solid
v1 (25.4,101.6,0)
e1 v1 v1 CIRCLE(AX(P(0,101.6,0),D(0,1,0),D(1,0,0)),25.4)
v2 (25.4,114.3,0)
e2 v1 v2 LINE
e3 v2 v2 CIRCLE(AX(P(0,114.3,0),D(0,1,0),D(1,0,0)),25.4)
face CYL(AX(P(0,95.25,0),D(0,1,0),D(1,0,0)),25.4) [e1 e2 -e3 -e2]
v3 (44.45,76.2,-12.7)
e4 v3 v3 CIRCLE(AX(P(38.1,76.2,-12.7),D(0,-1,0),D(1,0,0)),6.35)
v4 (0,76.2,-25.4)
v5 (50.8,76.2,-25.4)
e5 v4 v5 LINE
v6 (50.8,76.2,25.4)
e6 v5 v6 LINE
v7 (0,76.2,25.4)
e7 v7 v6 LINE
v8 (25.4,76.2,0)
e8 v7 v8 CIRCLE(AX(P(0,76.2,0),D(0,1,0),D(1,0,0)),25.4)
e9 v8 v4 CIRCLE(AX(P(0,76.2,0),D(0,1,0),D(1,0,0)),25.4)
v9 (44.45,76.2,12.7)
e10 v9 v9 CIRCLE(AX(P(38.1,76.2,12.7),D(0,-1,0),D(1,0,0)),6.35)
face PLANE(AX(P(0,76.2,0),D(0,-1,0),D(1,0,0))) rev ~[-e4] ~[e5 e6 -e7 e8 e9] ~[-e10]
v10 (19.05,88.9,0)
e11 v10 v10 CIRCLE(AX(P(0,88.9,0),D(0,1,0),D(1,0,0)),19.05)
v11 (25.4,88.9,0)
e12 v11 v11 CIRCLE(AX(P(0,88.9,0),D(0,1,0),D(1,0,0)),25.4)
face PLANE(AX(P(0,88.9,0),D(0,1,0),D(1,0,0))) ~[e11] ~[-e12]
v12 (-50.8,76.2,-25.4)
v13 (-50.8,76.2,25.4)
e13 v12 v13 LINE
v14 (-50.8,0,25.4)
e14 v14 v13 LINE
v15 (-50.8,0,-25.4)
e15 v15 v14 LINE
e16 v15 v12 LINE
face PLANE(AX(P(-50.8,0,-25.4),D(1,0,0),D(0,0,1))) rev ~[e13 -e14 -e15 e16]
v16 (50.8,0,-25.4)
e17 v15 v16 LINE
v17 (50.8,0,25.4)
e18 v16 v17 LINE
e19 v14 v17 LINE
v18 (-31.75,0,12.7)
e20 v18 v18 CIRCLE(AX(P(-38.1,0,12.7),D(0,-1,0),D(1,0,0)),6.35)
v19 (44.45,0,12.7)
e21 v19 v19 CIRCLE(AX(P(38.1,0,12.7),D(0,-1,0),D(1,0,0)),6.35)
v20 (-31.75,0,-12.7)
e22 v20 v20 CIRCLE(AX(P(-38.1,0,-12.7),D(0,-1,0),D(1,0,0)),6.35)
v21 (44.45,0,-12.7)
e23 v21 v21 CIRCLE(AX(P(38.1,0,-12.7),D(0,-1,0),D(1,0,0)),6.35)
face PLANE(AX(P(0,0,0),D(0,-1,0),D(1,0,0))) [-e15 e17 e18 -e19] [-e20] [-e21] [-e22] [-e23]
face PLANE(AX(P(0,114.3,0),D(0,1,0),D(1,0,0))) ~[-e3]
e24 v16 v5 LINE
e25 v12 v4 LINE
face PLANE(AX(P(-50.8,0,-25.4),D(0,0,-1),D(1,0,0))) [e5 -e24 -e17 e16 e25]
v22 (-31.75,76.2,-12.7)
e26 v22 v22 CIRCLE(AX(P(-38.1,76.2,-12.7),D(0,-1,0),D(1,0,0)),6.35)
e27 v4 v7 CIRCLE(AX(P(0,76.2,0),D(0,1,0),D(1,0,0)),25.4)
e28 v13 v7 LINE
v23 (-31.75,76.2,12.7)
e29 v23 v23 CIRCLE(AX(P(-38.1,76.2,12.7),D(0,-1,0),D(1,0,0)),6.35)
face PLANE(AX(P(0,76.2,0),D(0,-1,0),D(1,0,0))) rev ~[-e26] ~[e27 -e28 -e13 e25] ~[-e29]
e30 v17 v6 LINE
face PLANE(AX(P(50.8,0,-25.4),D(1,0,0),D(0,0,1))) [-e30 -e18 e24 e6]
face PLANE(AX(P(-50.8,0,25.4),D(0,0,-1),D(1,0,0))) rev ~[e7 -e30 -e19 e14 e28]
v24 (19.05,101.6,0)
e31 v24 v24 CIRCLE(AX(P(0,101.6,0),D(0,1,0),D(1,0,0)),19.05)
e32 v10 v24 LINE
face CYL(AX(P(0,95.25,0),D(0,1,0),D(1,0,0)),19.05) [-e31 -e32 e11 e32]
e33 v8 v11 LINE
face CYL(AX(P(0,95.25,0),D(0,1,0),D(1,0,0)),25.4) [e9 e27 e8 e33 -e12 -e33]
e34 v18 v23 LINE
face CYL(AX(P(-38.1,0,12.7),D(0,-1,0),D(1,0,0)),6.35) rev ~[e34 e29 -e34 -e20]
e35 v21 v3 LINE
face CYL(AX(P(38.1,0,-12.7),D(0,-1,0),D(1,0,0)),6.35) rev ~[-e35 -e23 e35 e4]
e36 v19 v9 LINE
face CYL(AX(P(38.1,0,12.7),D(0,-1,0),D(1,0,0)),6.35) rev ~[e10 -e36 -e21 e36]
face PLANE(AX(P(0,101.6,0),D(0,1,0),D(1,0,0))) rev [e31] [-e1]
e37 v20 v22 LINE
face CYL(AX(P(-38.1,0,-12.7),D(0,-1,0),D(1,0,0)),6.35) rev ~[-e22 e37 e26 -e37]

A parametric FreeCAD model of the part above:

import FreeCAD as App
import Part
import Sketcher

V = App.Vector
Q = App.Units.Quantity


def add_polygon(sketch, points):
    """Adds a closed chain of lines whose ends are joined by coincident constraints."""
    first, n = sketch.GeometryCount, len(points)
    for a, b in zip(points, points[1:] + points[:1]):
        sketch.addGeometry(Part.LineSegment(App.Vector(*a, 0), App.Vector(*b, 0)), False)
    for i in range(n):
        sketch.addConstraint(Sketcher.Constraint("Coincident", first + i, 2, first + (i + 1) % n, 1))

doc = App.newDocument("Part")
body = doc.addObject("PartDesign::Body", "Body")

sketch1 = doc.addObject("Sketcher::SketchObject", "Sketch")
body.addObject(sketch1)
sketch1.AttachmentSupport = (doc.XZ_Plane, [""])
sketch1.MapMode = "FlatFace"
add_polygon(sketch1, [(-51, 25), (-51, -25), (51, -25), (51, 25)])
sketch1.addConstraint(Sketcher.Constraint("Vertical", 0))
sketch1.addConstraint(Sketcher.Constraint("Horizontal", 1))
sketch1.addConstraint(Sketcher.Constraint("Vertical", 2))
sketch1.addConstraint(Sketcher.Constraint("Horizontal", 3))
sketch1.addConstraint(Sketcher.Constraint("Symmetric", 0, 2, 2, 2, -1, 1))
sketch1.addConstraint(Sketcher.Constraint("DistanceX", 1, 1, 1, 2, Q("4 in")))
sketch1.addConstraint(Sketcher.Constraint("DistanceY", 0, 2, 0, 1, Q("2 in")))
pad1 = doc.addObject("PartDesign::Pad", "Pad")
body.addObject(pad1)
pad1.Profile = sketch1
pad1.Length = Q("3 in")
pad1.Reversed = True

sketch2 = doc.addObject("Sketcher::SketchObject", "Sketch001")
body.addObject(sketch2)
sketch2.AttachmentSupport = (doc.XZ_Plane, [""])
sketch2.MapMode = "FlatFace"
sketch2.addGeometry(Part.Circle(V(-38, 13, 0), V(0, 0, 1), 6), False)
sketch2.addGeometry(Part.Circle(V(-38, -13, 0), V(0, 0, 1), 6), False)
sketch2.addGeometry(Part.Circle(V(38, -13, 0), V(0, 0, 1), 6), False)
sketch2.addGeometry(Part.Circle(V(38, 13, 0), V(0, 0, 1), 6), False)
sketch2.addConstraint(Sketcher.Constraint("Equal", 0, 1))
sketch2.addConstraint(Sketcher.Constraint("Equal", 1, 2))
sketch2.addConstraint(Sketcher.Constraint("Equal", 2, 3))
sketch2.addConstraint(Sketcher.Constraint("Symmetric", 0, 3, 2, 3, -1, 1))
sketch2.addConstraint(Sketcher.Constraint("Symmetric", 1, 3, 3, 3, -1, 1))
sketch2.addConstraint(Sketcher.Constraint("Symmetric", 1, 3, 2, 3, -2))
sketch2.addConstraint(Sketcher.Constraint("Diameter", 0, Q("0.5 in")))
sketch2.addConstraint(Sketcher.Constraint("DistanceY", 1, 3, 0, 3, Q("1 in")))
sketch2.addConstraint(Sketcher.Constraint("DistanceX", 1, 3, 2, 3, Q("3 in")))
pocket1 = doc.addObject("PartDesign::Pocket", "Pocket")
body.addObject(pocket1)
pocket1.Profile = sketch2
pocket1.Type = "ThroughAll"

sketch3 = doc.addObject("Sketcher::SketchObject", "Sketch002")
body.addObject(sketch3)
sketch3.AttachmentSupport = (doc.XY_Plane, [""])
sketch3.MapMode = "FlatFace"
add_polygon(sketch3, [(0, 114), (0, 76), (25, 76), (25, 114)])
sketch3.addConstraint(Sketcher.Constraint("Vertical", 0))
sketch3.addConstraint(Sketcher.Constraint("Horizontal", 1))
sketch3.addConstraint(Sketcher.Constraint("Vertical", 2))
sketch3.addConstraint(Sketcher.Constraint("Horizontal", 3))
sketch3.addConstraint(Sketcher.Constraint("PointOnObject", 0, 2, -2))
sketch3.addConstraint(Sketcher.Constraint("DistanceX", 1, 1, 1, 2, Q("1 in")))
sketch3.addConstraint(Sketcher.Constraint("DistanceY", 0, 2, 0, 1, Q("1.5 in")))
sketch3.addConstraint(Sketcher.Constraint("DistanceY", -1, 1, 0, 2, Q("3 in")))
revolution = doc.addObject("PartDesign::Revolution", "Revolution")
body.addObject(revolution)
revolution.Profile = sketch3
revolution.ReferenceAxis = (sketch3, ["V_Axis"])
revolution.Angle = 360

sketch4 = doc.addObject("Sketcher::SketchObject", "Sketch003")
body.addObject(sketch4)
sketch4.AttachmentSupport = (doc.XY_Plane, [""])
sketch4.MapMode = "FlatFace"
add_polygon(sketch4, [(19, 102), (19, 89), (25, 89), (25, 102)])
sketch4.addConstraint(Sketcher.Constraint("Vertical", 0))
sketch4.addConstraint(Sketcher.Constraint("Horizontal", 1))
sketch4.addConstraint(Sketcher.Constraint("Vertical", 2))
sketch4.addConstraint(Sketcher.Constraint("Horizontal", 3))
sketch4.addConstraint(Sketcher.Constraint("DistanceY", 0, 2, 0, 1, Q("0.5 in")))
sketch4.addConstraint(Sketcher.Constraint("DistanceX", -1, 1, 1, 2, Q("1 in")))
sketch4.addConstraint(Sketcher.Constraint("DistanceY", -1, 1, 2, 2, Q("4 in")))
sketch4.addConstraint(Sketcher.Constraint("DistanceX", 1, 1, 1, 2, Q("0.25 in")))
groove = doc.addObject("PartDesign::Groove", "Groove")
body.addObject(groove)
groove.Profile = sketch4
groove.ReferenceAxis = (sketch4, ["V_Axis"])
groove.Angle = 360

doc.recompute()
